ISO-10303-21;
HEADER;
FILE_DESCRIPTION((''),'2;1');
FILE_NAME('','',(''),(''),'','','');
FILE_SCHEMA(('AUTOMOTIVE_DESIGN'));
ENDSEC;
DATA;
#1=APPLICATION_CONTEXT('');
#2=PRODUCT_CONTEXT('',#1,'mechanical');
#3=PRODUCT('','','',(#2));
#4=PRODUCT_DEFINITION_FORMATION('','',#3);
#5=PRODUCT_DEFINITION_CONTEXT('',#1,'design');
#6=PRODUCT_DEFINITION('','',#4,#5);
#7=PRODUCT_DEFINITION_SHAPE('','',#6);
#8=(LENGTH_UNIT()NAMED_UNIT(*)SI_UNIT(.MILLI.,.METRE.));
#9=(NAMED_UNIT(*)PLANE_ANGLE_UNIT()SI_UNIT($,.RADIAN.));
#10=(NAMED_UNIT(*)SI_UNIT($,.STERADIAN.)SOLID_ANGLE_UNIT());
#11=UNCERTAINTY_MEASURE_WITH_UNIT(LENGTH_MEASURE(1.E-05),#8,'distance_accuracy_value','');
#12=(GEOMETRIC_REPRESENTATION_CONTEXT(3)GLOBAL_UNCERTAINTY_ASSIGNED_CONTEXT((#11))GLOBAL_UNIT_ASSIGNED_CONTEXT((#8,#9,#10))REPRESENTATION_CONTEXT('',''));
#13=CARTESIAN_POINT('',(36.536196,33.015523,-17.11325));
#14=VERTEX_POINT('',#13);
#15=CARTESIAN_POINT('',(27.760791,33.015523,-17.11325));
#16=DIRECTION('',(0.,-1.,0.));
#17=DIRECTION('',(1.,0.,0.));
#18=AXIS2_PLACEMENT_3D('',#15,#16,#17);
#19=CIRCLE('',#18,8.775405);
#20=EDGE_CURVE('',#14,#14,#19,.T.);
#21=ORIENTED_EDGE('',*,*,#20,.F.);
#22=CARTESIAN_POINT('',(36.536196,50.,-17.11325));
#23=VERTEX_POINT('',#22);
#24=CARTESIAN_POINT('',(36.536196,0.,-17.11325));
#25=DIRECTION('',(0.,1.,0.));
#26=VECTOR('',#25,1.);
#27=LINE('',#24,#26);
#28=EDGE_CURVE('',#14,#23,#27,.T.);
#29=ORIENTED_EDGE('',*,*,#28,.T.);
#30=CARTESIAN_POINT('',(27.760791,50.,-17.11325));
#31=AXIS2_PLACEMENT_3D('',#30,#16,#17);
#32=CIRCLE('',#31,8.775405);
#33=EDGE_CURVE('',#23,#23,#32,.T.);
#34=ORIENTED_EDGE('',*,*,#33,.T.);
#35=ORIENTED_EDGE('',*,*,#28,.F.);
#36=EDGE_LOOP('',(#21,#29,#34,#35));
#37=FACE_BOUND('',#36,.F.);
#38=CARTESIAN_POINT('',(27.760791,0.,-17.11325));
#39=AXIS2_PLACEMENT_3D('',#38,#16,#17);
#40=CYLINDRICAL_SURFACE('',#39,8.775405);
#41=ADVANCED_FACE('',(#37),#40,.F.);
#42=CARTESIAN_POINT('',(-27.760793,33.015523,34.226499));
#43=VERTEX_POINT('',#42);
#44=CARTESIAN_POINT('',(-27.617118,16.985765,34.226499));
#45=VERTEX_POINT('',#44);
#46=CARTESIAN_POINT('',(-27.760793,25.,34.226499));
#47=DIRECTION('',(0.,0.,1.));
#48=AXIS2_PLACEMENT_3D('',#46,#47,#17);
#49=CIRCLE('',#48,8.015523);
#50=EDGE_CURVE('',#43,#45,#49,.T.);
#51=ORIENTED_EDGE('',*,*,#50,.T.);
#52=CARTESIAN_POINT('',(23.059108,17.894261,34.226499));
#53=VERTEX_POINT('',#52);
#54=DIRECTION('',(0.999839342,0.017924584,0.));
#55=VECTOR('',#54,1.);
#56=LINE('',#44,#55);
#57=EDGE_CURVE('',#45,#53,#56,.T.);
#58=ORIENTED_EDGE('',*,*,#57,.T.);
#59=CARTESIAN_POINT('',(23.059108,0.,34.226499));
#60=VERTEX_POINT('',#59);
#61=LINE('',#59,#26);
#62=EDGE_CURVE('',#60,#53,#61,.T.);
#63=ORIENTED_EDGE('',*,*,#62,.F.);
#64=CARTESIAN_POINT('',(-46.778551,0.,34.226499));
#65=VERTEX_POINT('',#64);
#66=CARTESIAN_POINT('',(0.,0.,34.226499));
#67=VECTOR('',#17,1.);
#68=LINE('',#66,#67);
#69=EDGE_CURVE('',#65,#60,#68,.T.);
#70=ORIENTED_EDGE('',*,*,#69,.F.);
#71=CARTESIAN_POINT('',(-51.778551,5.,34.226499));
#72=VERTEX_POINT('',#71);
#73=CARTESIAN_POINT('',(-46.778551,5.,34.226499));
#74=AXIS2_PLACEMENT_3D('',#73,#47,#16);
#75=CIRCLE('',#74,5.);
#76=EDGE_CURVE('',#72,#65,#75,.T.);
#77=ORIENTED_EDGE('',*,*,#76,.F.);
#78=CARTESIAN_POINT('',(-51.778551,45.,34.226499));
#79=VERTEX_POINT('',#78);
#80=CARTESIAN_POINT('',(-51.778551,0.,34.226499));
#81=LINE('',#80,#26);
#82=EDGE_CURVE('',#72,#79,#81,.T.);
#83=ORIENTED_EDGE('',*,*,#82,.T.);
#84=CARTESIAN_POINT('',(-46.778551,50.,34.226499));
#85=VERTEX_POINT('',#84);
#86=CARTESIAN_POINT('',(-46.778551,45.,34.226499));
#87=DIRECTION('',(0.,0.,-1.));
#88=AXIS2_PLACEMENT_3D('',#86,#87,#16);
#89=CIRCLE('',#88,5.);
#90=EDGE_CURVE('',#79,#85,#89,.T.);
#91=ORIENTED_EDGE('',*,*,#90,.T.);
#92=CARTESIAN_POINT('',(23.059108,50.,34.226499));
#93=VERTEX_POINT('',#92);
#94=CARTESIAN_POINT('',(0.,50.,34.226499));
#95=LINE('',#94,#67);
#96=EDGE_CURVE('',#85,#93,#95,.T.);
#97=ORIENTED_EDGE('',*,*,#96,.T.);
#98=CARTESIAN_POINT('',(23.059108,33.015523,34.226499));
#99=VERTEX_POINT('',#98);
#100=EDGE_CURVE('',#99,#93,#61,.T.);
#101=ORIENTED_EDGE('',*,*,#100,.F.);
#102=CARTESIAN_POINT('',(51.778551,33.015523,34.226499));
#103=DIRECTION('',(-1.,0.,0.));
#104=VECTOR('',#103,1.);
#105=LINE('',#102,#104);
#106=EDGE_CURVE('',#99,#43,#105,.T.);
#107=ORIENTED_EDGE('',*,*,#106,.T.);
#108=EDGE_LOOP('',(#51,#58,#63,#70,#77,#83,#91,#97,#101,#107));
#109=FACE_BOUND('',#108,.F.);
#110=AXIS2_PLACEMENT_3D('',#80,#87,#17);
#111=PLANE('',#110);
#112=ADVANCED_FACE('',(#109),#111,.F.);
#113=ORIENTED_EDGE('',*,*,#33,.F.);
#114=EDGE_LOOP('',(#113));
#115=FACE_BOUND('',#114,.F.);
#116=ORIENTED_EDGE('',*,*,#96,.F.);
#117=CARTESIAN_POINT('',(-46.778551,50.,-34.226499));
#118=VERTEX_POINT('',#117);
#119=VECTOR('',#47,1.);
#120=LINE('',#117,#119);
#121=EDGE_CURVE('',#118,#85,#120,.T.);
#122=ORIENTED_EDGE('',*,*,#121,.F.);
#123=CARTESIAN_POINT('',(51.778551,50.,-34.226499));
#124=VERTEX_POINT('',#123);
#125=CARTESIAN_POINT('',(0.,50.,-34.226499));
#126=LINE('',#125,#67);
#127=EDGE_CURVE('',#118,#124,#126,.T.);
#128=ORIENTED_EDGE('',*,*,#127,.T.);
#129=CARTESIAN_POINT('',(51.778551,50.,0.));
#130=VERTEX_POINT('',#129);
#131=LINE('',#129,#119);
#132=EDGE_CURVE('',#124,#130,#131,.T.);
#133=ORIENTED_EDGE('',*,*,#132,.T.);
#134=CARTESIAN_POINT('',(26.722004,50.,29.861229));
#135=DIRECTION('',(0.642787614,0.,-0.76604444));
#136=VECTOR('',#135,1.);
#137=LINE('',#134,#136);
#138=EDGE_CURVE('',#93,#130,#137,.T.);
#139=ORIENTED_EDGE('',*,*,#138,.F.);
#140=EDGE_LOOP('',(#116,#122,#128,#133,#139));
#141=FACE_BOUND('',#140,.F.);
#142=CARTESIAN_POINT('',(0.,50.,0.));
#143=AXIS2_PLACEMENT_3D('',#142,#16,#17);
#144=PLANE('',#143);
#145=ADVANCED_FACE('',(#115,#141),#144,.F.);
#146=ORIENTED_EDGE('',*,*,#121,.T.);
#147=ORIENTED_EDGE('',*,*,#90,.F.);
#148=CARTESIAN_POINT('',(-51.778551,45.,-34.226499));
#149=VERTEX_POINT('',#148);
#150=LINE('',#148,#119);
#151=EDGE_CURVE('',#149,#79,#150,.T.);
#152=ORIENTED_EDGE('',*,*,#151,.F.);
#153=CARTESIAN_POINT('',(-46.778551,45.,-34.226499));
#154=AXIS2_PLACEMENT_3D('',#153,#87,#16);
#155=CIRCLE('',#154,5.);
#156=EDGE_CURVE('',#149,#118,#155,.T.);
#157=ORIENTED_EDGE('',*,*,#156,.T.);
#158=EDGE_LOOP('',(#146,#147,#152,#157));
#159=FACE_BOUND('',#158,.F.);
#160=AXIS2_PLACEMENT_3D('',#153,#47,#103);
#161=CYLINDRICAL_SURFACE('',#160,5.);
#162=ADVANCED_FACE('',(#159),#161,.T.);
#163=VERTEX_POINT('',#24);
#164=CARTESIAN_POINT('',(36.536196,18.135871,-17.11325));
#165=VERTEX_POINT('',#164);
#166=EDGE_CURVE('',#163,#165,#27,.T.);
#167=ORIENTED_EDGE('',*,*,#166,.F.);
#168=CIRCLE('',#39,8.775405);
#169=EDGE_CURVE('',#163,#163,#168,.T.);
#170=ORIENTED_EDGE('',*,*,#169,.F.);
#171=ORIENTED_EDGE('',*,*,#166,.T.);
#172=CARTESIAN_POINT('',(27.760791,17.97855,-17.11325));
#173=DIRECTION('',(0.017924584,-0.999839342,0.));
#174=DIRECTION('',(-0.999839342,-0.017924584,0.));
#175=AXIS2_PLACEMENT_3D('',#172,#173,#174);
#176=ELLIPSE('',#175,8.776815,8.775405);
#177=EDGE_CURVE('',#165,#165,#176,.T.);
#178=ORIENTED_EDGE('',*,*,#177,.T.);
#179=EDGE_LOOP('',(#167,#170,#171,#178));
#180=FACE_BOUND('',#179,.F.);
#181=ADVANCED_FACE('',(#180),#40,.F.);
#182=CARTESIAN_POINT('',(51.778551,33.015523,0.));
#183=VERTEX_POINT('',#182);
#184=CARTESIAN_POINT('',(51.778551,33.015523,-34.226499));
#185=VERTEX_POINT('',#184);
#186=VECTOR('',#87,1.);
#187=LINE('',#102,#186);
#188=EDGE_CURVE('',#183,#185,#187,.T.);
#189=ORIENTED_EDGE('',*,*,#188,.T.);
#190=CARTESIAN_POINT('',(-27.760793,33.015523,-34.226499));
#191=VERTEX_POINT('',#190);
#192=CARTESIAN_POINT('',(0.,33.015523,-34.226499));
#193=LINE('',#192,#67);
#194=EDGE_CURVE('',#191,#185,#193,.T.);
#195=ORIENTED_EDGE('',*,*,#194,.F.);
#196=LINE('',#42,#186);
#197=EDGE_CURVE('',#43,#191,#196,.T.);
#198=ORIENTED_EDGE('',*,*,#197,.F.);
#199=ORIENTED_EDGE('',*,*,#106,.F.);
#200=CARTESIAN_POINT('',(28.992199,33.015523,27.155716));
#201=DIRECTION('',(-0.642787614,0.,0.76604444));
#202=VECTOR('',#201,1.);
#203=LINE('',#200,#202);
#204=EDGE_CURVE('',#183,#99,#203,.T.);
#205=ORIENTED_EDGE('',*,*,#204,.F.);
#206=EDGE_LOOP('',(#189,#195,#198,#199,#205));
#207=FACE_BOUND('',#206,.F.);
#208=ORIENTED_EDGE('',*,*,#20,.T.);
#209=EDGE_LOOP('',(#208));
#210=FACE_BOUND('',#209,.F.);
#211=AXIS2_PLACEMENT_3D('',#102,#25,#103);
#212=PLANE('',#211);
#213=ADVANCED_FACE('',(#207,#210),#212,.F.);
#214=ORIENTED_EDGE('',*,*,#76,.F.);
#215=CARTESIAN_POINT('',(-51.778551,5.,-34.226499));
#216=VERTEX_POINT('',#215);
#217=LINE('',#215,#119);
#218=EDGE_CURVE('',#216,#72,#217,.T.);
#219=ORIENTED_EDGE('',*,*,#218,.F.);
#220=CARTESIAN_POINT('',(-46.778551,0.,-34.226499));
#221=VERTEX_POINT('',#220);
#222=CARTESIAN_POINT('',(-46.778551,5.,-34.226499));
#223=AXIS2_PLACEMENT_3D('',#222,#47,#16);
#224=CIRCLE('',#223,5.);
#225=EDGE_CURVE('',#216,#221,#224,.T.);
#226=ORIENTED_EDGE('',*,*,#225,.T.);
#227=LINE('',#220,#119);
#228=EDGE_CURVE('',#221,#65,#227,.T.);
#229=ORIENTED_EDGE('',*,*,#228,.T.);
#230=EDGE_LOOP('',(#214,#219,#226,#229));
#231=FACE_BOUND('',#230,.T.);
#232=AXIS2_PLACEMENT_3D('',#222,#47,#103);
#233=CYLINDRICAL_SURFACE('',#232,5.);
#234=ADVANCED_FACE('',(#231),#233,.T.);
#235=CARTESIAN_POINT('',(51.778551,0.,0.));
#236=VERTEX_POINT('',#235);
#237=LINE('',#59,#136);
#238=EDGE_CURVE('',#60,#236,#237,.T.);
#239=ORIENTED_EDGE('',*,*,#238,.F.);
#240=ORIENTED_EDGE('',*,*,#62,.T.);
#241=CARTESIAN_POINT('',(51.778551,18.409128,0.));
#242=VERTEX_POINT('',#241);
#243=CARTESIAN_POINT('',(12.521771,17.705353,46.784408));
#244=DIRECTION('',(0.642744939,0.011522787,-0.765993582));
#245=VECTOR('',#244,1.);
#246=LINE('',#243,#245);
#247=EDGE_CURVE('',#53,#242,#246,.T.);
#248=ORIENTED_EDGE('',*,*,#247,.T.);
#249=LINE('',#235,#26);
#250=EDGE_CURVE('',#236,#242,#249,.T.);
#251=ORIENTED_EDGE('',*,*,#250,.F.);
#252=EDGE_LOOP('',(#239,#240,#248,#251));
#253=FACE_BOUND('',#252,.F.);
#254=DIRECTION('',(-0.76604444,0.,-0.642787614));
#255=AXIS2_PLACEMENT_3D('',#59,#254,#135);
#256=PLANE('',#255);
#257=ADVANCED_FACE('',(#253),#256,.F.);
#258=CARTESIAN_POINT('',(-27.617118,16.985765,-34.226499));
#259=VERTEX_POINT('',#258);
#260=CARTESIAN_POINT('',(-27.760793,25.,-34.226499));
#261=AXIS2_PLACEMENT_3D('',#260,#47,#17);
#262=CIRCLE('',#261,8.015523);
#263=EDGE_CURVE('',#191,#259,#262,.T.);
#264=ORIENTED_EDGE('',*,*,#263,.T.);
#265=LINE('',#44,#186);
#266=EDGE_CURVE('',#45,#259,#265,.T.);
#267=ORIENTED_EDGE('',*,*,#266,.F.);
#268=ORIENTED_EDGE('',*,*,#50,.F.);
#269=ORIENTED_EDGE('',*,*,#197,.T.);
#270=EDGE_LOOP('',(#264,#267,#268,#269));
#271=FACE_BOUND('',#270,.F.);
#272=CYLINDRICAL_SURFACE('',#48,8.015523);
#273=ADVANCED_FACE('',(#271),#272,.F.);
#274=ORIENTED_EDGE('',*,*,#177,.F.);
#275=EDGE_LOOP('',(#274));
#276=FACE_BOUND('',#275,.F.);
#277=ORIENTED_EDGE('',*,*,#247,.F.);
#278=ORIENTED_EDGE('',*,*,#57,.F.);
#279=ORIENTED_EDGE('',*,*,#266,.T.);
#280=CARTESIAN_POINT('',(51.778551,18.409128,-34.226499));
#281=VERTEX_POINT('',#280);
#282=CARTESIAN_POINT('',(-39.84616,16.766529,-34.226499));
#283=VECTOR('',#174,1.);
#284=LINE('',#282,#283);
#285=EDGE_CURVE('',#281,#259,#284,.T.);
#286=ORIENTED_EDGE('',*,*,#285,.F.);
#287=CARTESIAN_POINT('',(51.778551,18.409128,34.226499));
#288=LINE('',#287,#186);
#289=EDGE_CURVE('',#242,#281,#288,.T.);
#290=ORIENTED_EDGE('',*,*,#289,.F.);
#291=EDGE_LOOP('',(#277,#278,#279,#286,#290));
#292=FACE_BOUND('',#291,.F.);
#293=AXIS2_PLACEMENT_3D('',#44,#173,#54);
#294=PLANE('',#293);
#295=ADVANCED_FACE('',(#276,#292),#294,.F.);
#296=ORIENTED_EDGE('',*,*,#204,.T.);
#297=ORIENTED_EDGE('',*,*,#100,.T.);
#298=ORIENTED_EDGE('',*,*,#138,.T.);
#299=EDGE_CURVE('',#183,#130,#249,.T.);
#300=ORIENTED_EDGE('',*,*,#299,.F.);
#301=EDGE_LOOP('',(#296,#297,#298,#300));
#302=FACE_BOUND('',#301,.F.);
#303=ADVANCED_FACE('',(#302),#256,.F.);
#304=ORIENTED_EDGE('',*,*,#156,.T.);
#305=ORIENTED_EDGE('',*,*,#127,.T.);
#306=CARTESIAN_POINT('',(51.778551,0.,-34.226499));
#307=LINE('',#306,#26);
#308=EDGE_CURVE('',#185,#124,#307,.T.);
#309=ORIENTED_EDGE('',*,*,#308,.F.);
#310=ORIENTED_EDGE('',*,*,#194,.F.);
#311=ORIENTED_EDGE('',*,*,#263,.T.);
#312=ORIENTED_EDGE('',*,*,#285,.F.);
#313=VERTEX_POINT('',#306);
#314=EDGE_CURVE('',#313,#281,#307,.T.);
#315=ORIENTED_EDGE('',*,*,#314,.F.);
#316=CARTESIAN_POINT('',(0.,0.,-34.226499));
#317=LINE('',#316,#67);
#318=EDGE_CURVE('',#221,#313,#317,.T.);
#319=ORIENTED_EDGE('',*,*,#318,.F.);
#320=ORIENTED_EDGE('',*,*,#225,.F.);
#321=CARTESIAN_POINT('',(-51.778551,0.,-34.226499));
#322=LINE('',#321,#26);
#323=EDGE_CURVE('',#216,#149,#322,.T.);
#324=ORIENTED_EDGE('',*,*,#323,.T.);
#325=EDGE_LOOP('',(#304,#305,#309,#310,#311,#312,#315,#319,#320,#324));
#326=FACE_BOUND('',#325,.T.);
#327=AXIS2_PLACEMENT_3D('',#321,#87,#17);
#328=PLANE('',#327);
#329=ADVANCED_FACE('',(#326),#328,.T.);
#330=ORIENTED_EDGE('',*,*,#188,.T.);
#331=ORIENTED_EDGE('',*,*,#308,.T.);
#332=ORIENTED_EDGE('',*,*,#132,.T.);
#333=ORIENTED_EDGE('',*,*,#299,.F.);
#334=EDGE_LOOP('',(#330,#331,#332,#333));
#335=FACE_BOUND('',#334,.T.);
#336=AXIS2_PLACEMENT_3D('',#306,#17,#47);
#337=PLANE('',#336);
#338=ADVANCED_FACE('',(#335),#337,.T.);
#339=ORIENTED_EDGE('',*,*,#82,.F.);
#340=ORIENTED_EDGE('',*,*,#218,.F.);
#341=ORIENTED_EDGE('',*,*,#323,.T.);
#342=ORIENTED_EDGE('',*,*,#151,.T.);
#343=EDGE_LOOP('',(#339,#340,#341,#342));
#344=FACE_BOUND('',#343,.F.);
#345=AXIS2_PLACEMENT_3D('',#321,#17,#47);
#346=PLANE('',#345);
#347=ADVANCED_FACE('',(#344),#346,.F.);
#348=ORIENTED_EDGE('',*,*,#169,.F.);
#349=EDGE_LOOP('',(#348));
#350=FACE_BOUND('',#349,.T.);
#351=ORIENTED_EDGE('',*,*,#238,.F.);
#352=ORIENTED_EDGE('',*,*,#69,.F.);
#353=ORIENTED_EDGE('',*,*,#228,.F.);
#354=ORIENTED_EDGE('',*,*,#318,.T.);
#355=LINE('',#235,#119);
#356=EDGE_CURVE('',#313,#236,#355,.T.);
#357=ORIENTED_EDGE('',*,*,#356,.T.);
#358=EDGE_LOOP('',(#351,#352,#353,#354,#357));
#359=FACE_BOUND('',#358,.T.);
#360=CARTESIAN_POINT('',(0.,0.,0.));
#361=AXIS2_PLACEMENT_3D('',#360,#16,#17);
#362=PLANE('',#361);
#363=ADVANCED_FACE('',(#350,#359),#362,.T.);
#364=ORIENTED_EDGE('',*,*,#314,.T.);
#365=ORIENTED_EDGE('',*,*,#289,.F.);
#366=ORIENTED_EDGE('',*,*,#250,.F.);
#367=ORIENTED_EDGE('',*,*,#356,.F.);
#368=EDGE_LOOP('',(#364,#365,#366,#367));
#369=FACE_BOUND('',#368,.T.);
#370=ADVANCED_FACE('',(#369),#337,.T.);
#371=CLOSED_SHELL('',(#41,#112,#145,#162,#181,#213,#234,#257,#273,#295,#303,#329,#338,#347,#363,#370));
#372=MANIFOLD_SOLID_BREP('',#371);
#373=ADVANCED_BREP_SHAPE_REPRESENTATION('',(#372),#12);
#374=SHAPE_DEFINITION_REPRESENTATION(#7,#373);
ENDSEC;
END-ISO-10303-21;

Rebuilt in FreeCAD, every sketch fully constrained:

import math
import FreeCAD as App
import Part
import Sketcher

V = App.Vector
Q = App.Units.Quantity


def edges_at(feature, points):
    """Names of the edges that pass closest to the given points."""
    edges = feature.Shape.Edges
    near = lambda p: min(range(len(edges)), key=lambda i: edges[i].distToShape(Part.Vertex(*p))[0])
    return sorted({f"Edge{near(p) + 1}" for p in points})


def add_polygon(sketch, points):
    """Adds a closed chain of lines whose ends are joined by coincident constraints."""
    first, n = sketch.GeometryCount, len(points)
    for a, b in zip(points, points[1:] + points[:1]):
        sketch.addGeometry(Part.LineSegment(App.Vector(*a, 0), App.Vector(*b, 0)), False)
    for i in range(n):
        sketch.addConstraint(Sketcher.Constraint("Coincident", first + i, 2, first + (i + 1) % n, 1))

doc = App.newDocument("Part")
body = doc.addObject("PartDesign::Body", "Body")

# Sketch on XZ plane
sketch1 = body.newObject("Sketcher::SketchObject", "Sketch")
sketch1.AttachmentSupport = (doc.getObject("XZ_Plane"), [""])
sketch1.MapMode = "FlatFace"
add_polygon(sketch1, [(-52, 34), (-52, -34), (52, -34), (52, 34)])  # lines 0-3
sketch1.addConstraint([
    Sketcher.Constraint("Vertical", 0),
    Sketcher.Constraint("Horizontal", 1),
    Sketcher.Constraint("Vertical", 2),
    Sketcher.Constraint("Horizontal", 3),
    Sketcher.Constraint("Symmetric", 0, 2, 2, 2, -1, 1),
    Sketcher.Constraint("DistanceX", 1, 1, 1, 2, 103.557102),
    Sketcher.Constraint("DistanceY", 0, 2, -1, 1, 34.226499),
])
pad1 = body.newObject("PartDesign::Pad", "Pad")
pad1.Profile = sketch1
pad1.Length = 50
pad1.Reversed = True

# Sketch on XY plane
sketch2 = body.newObject("Sketcher::SketchObject", "Sketch001")
sketch2.AttachmentSupport = (doc.getObject("XY_Plane"), [""])
sketch2.MapMode = "FlatFace"
sketch2.AttachmentOffset = App.Placement(V(0, 0, 34.226499), App.Rotation())
sketch2.addGeometry(Part.Circle(V(-28, 25, 0), V(0, 0, 1), 8), False)
sketch2.addConstraint([
    Sketcher.Constraint("DistanceY", -1, 1, 0, 3, 25.0),
    Sketcher.Constraint("Diameter", 0, 16.031046),
    Sketcher.Constraint("DistanceX", 0, 3, -1, 1, 27.760793),
])
pocket1 = body.newObject("PartDesign::Pocket", "Pocket")
pocket1.Profile = sketch2
pocket1.Length = 70

# Sketch on XY plane
sketch3 = body.newObject("Sketcher::SketchObject", "Sketch002")
sketch3.AttachmentSupport = (doc.getObject("XY_Plane"), [""])
sketch3.MapMode = "FlatFace"
sketch3.AttachmentOffset = App.Placement(V(0, 0, 34.226499), App.Rotation())
sketch3.addGeometry([
    Part.LineSegment(V(52, 33, 0), V(-28, 33, 0)),  # 0
    Part.ArcOfCircle(Part.Circle(V(-28, 25, 0), V(0, 0, 1), 8), math.radians(0), math.radians(90)),  # 1
    Part.ArcOfCircle(Part.Circle(V(-28, 25, 0), V(0, 0, 1), 8), math.radians(-89), math.radians(0)),  # 2
    Part.LineSegment(V(-28, 17, 0), V(52, 18, 0)),  # 3
    Part.LineSegment(V(52, 18, 0), V(52, 33, 0)),  # 4
], False)
sketch3.addConstraint([
    Sketcher.Constraint("Tangent", 0, 2, 1, 2),
    Sketcher.Constraint("Tangent", 1, 1, 2, 2),
    Sketcher.Constraint("Tangent", 2, 1, 3, 1),
    Sketcher.Constraint("Coincident", 3, 2, 4, 1),
    Sketcher.Constraint("Coincident", 4, 2, 0, 1),
    Sketcher.Constraint("Horizontal", 0),
    Sketcher.Constraint("Vertical", 4),
    Sketcher.Constraint("Equal", 1, 2),
    Sketcher.Constraint("Horizontal", 2, 3, 1, 1),
    Sketcher.Constraint("DistanceY", -1, 1, 1, 3, 25.000001),
    Sketcher.Constraint("Radius", 1, 8.015522),
    Sketcher.Constraint("DistanceX", 0, 2, 0, 1, 79.539344),
    Sketcher.Constraint("DistanceY", 4, 1, 4, 2, 14.606395),
    Sketcher.Constraint("DistanceX", 1, 3, -1, 1, 27.760792),
])
pocket2 = body.newObject("PartDesign::Pocket", "Pocket001")
pocket2.Profile = sketch3
pocket2.Length = 75

# Sketch on XZ plane
sketch4 = body.newObject("Sketcher::SketchObject", "Sketch003")
sketch4.AttachmentSupport = (doc.getObject("XZ_Plane"), [""])
sketch4.MapMode = "FlatFace"
add_polygon(sketch4, [(52, 34), (23, 34), (52, 0)])  # lines 0-2
sketch4.addConstraint([
    Sketcher.Constraint("Horizontal", 0),
    Sketcher.Constraint("Vertical", 2),
    Sketcher.Constraint("PointOnObject", 1, 2, -1),
    Sketcher.Constraint("Angle", 1, Q("-50 deg")),
    Sketcher.Constraint("DistanceY", 2, 1, 2, 2, 34.226499),
    Sketcher.Constraint("DistanceX", -1, 1, 1, 2, 51.778551),
])
pocket3 = body.newObject("PartDesign::Pocket", "Pocket002")
pocket3.Profile = sketch4
pocket3.Length = 60

# Sketch on XZ plane
sketch5 = body.newObject("Sketcher::SketchObject", "Sketch004")
sketch5.AttachmentSupport = (doc.getObject("XZ_Plane"), [""])
sketch5.MapMode = "FlatFace"
sketch5.addGeometry(Part.Circle(V(28, -17, 0), V(0, 0, 1), 9), False)
sketch5.addConstraint([
    Sketcher.Constraint("Diameter", 0, 17.55081),
    Sketcher.Constraint("DistanceX", -1, 1, 0, 3, 27.760791),
    Sketcher.Constraint("DistanceY", 0, 3, -1, 1, 17.11325),
])
pocket4 = body.newObject("PartDesign::Pocket", "Pocket003")
pocket4.Profile = sketch5
pocket4.Length = 75
doc.recompute()

fillet = body.newObject("PartDesign::Fillet", "Fillet")
fillet.Base = (pocket4, edges_at(pocket4, [(-51.779, 0, 0), (-51.779, 50, 0)]))
fillet.Radius = 5

doc.recompute()
